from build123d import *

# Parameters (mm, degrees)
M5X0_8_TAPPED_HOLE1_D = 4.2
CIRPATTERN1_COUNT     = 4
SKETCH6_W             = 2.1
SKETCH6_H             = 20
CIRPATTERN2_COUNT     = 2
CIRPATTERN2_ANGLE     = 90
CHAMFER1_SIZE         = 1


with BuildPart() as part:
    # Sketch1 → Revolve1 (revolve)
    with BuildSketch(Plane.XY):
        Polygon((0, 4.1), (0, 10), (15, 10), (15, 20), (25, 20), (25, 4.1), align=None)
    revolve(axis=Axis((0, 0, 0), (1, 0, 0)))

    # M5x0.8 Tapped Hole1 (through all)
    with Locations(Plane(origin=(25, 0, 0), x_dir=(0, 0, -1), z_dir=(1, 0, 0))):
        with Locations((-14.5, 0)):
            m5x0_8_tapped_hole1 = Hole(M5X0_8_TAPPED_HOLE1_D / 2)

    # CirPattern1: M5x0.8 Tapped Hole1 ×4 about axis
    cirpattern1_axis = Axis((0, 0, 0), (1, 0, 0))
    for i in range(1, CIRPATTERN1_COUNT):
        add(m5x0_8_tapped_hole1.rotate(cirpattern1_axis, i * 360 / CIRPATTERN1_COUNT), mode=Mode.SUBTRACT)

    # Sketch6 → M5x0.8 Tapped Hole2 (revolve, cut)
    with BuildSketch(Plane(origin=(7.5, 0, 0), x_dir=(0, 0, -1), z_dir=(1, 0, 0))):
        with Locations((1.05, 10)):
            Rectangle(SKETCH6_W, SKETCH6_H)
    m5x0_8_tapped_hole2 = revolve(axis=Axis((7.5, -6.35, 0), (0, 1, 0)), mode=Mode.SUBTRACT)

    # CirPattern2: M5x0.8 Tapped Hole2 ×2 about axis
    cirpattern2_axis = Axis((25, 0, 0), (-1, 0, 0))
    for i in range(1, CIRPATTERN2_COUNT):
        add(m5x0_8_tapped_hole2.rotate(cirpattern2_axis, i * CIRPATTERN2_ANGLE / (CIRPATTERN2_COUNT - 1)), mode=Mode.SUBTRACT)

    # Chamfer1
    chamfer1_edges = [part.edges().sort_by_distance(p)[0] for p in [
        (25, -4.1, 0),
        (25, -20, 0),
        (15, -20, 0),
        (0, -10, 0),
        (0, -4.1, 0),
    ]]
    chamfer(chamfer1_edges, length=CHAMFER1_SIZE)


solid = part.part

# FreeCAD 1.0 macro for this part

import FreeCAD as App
import Part
import Sketcher
from FreeCAD import Vector
Q = App.Units.Quantity


def edges_at(feature, points):
    """Names of the edges that pass closest to the given points."""
    edges = feature.Shape.Edges
    near = lambda p: min(range(len(edges)), key=lambda i: edges[i].distToShape(Part.Vertex(*p))[0])
    return sorted({f"Edge{near(p) + 1}" for p in points})

doc = App.newDocument("Part")
params = doc.addObject("Spreadsheet::Sheet", "Params")
for row, (alias, value) in enumerate([
    ("sketch1_width", "25 mm"),
    ("sketch1_width2", "10 mm"),
    ("sketch1_height", "5.9 mm"),
    ("revolution_angle", "360 deg"),
    ("sketch2_diameter", "4.2 mm"),
    ("hole_diameter", "4.2 mm"),
    ("sketch3_width", "20 mm"),
    ("sketch3_height", "2.1 mm"),
    ("groove_angle", "360 deg"),
    ("chamfer_size", "1 mm"),
], start=1):
    params.set(f"A{row}", alias)
    params.set(f"B{row}", "=" + value)
    params.setAlias(f"B{row}", alias)

body = doc.addObject("PartDesign::Body", "Body")

# Sketch on XY plane
sketch1 = doc.addObject("Sketcher::SketchObject", "Sketch")
body.addObject(sketch1)
sketch1.AttachmentSupport = (doc.XY_Plane, [""])
sketch1.MapMode = "FlatFace"
sketch1.addGeometry([
    Part.LineSegment(Vector(0, 10, 0), Vector(0, 4, 0)),  # 0
    Part.LineSegment(Vector(0, 4, 0), Vector(25, 4, 0)),  # 1
    Part.LineSegment(Vector(25, 4, 0), Vector(25, 20, 0)),  # 2
    Part.LineSegment(Vector(25, 20, 0), Vector(15, 20, 0)),  # 3
    Part.LineSegment(Vector(15, 20, 0), Vector(15, 10, 0)),  # 4
    Part.LineSegment(Vector(15, 10, 0), Vector(0, 10, 0)),  # 5
], False)
sketch1.addConstraint([
    Sketcher.Constraint("Coincident", 0, 2, 1, 1),
    Sketcher.Constraint("Coincident", 1, 2, 2, 1),
    Sketcher.Constraint("Coincident", 2, 2, 3, 1),
    Sketcher.Constraint("Coincident", 3, 2, 4, 1),
    Sketcher.Constraint("Coincident", 4, 2, 5, 1),
    Sketcher.Constraint("Coincident", 5, 2, 0, 1),
    Sketcher.Constraint("Vertical", 0),
    Sketcher.Constraint("Horizontal", 1),
    Sketcher.Constraint("Vertical", 2),
    Sketcher.Constraint("Horizontal", 3),
    Sketcher.Constraint("Vertical", 4),
    Sketcher.Constraint("Horizontal", 5),
    Sketcher.Constraint("PointOnObject", 0, 2, -2),
    Sketcher.Constraint("Equal", 3, 4),
    Sketcher.Constraint("DistanceX", 1, 1, 1, 2, Q("25 mm")),
    Sketcher.Constraint("DistanceX", 3, 2, 3, 1, Q("10 mm")),
    Sketcher.Constraint("DistanceY", 0, 2, 0, 1, Q("5.9 mm")),
    Sketcher.Constraint("DistanceY", -1, 1, 2, 2, Q("20 mm")),
])
sketch1.setExpression("Constraints[14]", "Params.sketch1_width")
sketch1.setExpression("Constraints[15]", "Params.sketch1_width2")
sketch1.setExpression("Constraints[16]", "Params.sketch1_height")
revolution = doc.addObject("PartDesign::Revolution", "Revolution")
body.addObject(revolution)
revolution.Profile = sketch1
revolution.ReferenceAxis = (sketch1, ["H_Axis"])
revolution.setExpression("Angle", "Params.revolution_angle")

# Sketch on YZ plane
sketch2 = doc.addObject("Sketcher::SketchObject", "Sketch001")
body.addObject(sketch2)
sketch2.AttachmentSupport = (doc.YZ_Plane, [""])
sketch2.MapMode = "FlatFace"
sketch2.AttachmentOffset = App.Placement(Vector(0, 0, 25), App.Rotation())
sketch2.addGeometry(Part.Circle(Vector(0, 14.5, 0), Vector(0, 0, 1), 2.1), False)
sketch2.addConstraint([
    Sketcher.Constraint("PointOnObject", 0, 3, -2),
    Sketcher.Constraint("Diameter", 0, Q("4.2 mm")),
    Sketcher.Constraint("DistanceY", -1, 1, 0, 3, Q("14.5 mm")),
])
sketch2.setExpression("Constraints[1]", "Params.sketch2_diameter")
doc.recompute()
hole = doc.addObject("PartDesign::Hole", "Hole")
body.addObject(hole)
hole.Profile = sketch2
hole.ThreadType = "None"
hole.setExpression("Diameter", "Params.hole_diameter")
hole.DepthType = "ThroughAll"
doc.recompute()

polarpattern = doc.addObject("PartDesign::PolarPattern", "PolarPattern")
body.addObject(polarpattern)
polarpattern.Originals = [hole]
polarpattern.Axis = (doc.X_Axis, [""])
polarpattern.Angle = 360
polarpattern.Occurrences = 4
body.Tip = polarpattern

# Sketch on YZ plane
sketch3 = doc.addObject("Sketcher::SketchObject", "Sketch002")
body.addObject(sketch3)
sketch3.AttachmentSupport = (doc.YZ_Plane, [""])
sketch3.MapMode = "FlatFace"
sketch3.AttachmentOffset = App.Placement(Vector(0, 0, 7.5), App.Rotation())
sketch3.addGeometry([
    Part.LineSegment(Vector(20, 0, 0), Vector(0, 0, 0)),
    Part.LineSegment(Vector(0, 0, 0), Vector(0, -2.1, 0)),
    Part.LineSegment(Vector(0, -2.1, 0), Vector(20, -2.1, 0)),
    Part.LineSegment(Vector(20, -2.1, 0), Vector(20, 0, 0)),
], False)
sketch3.addConstraint([
    Sketcher.Constraint("Coincident", 0, 2, 1, 1),
    Sketcher.Constraint("Coincident", 1, 2, 2, 1),
    Sketcher.Constraint("Coincident", 2, 2, 3, 1),
    Sketcher.Constraint("Coincident", 3, 2, 0, 1),
    Sketcher.Constraint("Horizontal", 0),
    Sketcher.Constraint("Vertical", 1),
    Sketcher.Constraint("Horizontal", 2),
    Sketcher.Constraint("Vertical", 3),
    Sketcher.Constraint("Coincident", 0, 2, -1, 1),
    Sketcher.Constraint("DistanceX", 0, 2, 0, 1, Q("20 mm")),
    Sketcher.Constraint("DistanceY", 1, 2, 1, 1, Q("2.1 mm")),
])
sketch3.setExpression("Constraints[9]", "Params.sketch3_width")
sketch3.setExpression("Constraints[10]", "Params.sketch3_height")
groove = doc.addObject("PartDesign::Groove", "Groove")
body.addObject(groove)
groove.Profile = sketch3
groove.ReferenceAxis = (sketch3, ["H_Axis"])
groove.setExpression("Angle", "Params.groove_angle")
doc.recompute()

polarpattern2 = doc.addObject("PartDesign::PolarPattern", "PolarPattern001")
body.addObject(polarpattern2)
polarpattern2.Originals = [groove]
polarpattern2.Axis = (doc.X_Axis, [""])
polarpattern2.Angle = 90
polarpattern2.Occurrences = 2
polarpattern2.Reversed = True
body.Tip = polarpattern2
doc.recompute()

chamfer = doc.addObject("PartDesign::Chamfer", "Chamfer")
body.addObject(chamfer)
chamfer.Base = (polarpattern2, edges_at(polarpattern2, [
    (25, -4.1, 0),
    (25, -20, 0),
    (15, -20, 0),
    (0, -10, 0),
    (0, -4.1, 0),
]))
chamfer.setExpression("Size", "Params.chamfer_size")

doc.recompute()
